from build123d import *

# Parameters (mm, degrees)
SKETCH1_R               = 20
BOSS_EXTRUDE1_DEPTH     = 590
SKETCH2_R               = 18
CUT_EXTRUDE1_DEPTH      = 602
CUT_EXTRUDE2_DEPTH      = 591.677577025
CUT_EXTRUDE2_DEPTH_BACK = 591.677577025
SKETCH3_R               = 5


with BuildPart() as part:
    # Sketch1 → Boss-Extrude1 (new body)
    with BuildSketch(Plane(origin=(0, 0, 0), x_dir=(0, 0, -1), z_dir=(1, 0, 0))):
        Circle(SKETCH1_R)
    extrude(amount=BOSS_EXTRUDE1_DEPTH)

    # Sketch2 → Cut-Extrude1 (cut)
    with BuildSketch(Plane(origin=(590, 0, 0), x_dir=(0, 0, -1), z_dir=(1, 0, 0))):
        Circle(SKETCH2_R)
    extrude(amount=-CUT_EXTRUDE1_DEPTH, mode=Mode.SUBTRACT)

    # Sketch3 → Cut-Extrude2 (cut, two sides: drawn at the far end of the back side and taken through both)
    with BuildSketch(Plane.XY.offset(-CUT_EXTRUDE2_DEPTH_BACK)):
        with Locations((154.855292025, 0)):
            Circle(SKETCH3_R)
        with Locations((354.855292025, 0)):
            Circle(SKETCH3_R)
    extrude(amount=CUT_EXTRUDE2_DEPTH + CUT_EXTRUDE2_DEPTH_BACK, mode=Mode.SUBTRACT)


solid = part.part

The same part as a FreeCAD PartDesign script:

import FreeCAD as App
import Part
import Sketcher
from FreeCAD import Vector
Q = App.Units.Quantity

doc = App.newDocument("Part")
body = doc.addObject("PartDesign::Body", "Body")

# Sketch on YZ plane
sketch1 = body.newObject("Sketcher::SketchObject", "Sketch")
sketch1.AttachmentSupport = (doc.getObject("YZ_Plane"), [""])
sketch1.MapMode = "FlatFace"
sketch1.addGeometry(Part.Circle(Vector(0, 0, 0), Vector(0, 0, 1), 20), False)
sketch1.addConstraint(Sketcher.Constraint("Coincident", 0, 3, -1, 1))
sketch1.addConstraint(Sketcher.Constraint("Diameter", 0, Q("40 mm")))
pad1 = body.newObject("PartDesign::Pad", "Pad")
pad1.Profile = sketch1
pad1.Length = 590

# Sketch on YZ plane
sketch2 = body.newObject("Sketcher::SketchObject", "Sketch001")
sketch2.AttachmentSupport = (doc.getObject("YZ_Plane"), [""])
sketch2.MapMode = "FlatFace"
sketch2.AttachmentOffset = App.Placement(Vector(0, 0, 590), App.Rotation())
sketch2.addGeometry(Part.Circle(Vector(0, 0, 0), Vector(0, 0, 1), 18), False)
sketch2.addConstraint(Sketcher.Constraint("Coincident", 0, 3, -1, 1))
sketch2.addConstraint(Sketcher.Constraint("Diameter", 0, Q("36 mm")))
pocket1 = body.newObject("PartDesign::Pocket", "Pocket")
pocket1.Profile = sketch2
pocket1.Length = 602

# Sketch on XY plane
sketch3 = body.newObject("Sketcher::SketchObject", "Sketch002")
sketch3.AttachmentSupport = (doc.getObject("XY_Plane"), [""])
sketch3.MapMode = "FlatFace"
sketch3.addGeometry(Part.Circle(Vector(155, 0, 0), Vector(0, 0, 1), 5), False)
sketch3.addGeometry(Part.Circle(Vector(355, 0, 0), Vector(0, 0, 1), 5), False)
sketch3.addConstraint(Sketcher.Constraint("Equal", 0, 1))
sketch3.addConstraint(Sketcher.Constraint("PointOnObject", 0, 3, -1))
sketch3.addConstraint(Sketcher.Constraint("PointOnObject", 1, 3, -1))
sketch3.addConstraint(Sketcher.Constraint("Diameter", 0, Q("10 mm")))
sketch3.addConstraint(Sketcher.Constraint("DistanceX", 0, 3, 1, 3, Q("200 mm")))
sketch3.addConstraint(Sketcher.Constraint("DistanceX", -1, 1, 0, 3, Q("154.855292 mm")))
pocket2 = body.newObject("PartDesign::Pocket", "Pocket001")
pocket2.Profile = sketch3
pocket2.Type = "ThroughAll"
pocket2.Midplane = True

doc.recompute()
